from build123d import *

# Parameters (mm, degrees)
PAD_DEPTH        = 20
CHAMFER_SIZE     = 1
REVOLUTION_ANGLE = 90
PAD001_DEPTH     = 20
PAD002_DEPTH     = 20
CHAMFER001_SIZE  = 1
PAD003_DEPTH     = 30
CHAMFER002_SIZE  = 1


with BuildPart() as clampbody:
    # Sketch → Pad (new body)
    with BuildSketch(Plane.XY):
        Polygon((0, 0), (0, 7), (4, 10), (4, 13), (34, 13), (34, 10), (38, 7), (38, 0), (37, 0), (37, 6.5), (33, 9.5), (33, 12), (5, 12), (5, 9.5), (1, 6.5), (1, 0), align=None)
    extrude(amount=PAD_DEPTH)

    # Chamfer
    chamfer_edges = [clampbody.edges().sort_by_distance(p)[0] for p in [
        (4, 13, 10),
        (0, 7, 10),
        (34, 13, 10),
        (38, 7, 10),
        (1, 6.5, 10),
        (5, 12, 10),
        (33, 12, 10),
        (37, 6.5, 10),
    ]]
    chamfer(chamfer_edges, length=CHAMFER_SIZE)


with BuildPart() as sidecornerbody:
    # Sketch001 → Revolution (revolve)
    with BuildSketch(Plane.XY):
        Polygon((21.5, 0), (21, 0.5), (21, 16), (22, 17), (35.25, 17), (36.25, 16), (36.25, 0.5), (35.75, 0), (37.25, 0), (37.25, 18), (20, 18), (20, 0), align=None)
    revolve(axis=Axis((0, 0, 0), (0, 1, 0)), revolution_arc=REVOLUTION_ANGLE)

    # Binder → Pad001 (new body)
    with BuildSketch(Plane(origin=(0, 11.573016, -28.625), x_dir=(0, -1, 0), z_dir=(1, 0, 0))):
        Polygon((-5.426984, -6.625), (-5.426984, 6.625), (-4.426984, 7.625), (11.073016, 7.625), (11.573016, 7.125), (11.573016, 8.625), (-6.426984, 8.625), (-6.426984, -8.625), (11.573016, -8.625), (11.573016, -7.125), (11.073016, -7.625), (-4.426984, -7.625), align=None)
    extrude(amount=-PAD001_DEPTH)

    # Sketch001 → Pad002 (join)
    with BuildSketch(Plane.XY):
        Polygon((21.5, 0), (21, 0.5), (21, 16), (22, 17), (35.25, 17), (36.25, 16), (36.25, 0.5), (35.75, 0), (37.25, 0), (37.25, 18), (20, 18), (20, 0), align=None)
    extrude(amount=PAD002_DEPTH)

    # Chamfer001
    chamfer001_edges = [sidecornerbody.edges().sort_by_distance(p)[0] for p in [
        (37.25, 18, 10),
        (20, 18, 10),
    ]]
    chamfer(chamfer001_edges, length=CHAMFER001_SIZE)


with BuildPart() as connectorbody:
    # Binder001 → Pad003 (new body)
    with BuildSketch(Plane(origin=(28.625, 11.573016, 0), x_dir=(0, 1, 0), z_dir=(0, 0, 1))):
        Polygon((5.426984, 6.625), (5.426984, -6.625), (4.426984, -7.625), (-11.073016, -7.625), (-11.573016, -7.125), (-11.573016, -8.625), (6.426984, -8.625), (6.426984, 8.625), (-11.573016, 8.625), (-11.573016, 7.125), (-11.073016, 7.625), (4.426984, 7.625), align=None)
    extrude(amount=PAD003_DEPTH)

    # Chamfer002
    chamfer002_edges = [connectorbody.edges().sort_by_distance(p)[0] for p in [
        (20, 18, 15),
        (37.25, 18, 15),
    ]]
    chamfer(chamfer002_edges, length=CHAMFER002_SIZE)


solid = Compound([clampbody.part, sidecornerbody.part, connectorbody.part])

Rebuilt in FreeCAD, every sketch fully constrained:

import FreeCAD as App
import Part
import Sketcher

V = App.Vector


def edges_at(feature, points):
    """Names of the edges that pass closest to the given points."""
    edges = feature.Shape.Edges
    near = lambda p: min(range(len(edges)), key=lambda i: edges[i].distToShape(Part.Vertex(*p))[0])
    return sorted({f"Edge{near(p) + 1}" for p in points})


def add_polygon(sketch, points):
    """Adds a closed chain of lines whose ends are joined by coincident constraints."""
    first, n = sketch.GeometryCount, len(points)
    for a, b in zip(points, points[1:] + points[:1]):
        sketch.addGeometry(Part.LineSegment(App.Vector(*a, 0), App.Vector(*b, 0)), False)
    for i in range(n):
        sketch.addConstraint(Sketcher.Constraint("Coincident", first + i, 2, first + (i + 1) % n, 1))

doc = App.newDocument("Part")
body = doc.addObject("PartDesign::Body", "Body")

sketch1 = body.newObject("Sketcher::SketchObject", "Sketch")
sketch1.AttachmentSupport = (doc.getObject("XY_Plane"), [""])
sketch1.MapMode = "FlatFace"
add_polygon(sketch1, [(0, 7), (0, 0), (1, 0), (1, 6.5), (5, 9.5), (5, 12), (33, 12), (33, 9.5), (37, 6.5), (37, 0), (38, 0), (38, 7), (34, 10), (34, 13), (4, 13), (4, 10)])
sketch1.addConstraint([
    Sketcher.Constraint("Vertical", 0),
    Sketcher.Constraint("Horizontal", 1),
    Sketcher.Constraint("Vertical", 2),
    Sketcher.Constraint("Vertical", 4),
    Sketcher.Constraint("Horizontal", 5),
    Sketcher.Constraint("Vertical", 6),
    Sketcher.Constraint("Vertical", 8),
    Sketcher.Constraint("Horizontal", 9),
    Sketcher.Constraint("Vertical", 10),
    Sketcher.Constraint("Vertical", 12),
    Sketcher.Constraint("Horizontal", 13),
    Sketcher.Constraint("Vertical", 14),
    Sketcher.Constraint("Coincident", 0, 2, -1, 1),
    Sketcher.Constraint("PointOnObject", 8, 2, -1),
    Sketcher.Constraint("Parallel", 7, 11),
    Sketcher.Constraint("Parallel", 3, 15),
    Sketcher.Constraint("Horizontal", 3, 2, 6, 2),
    Sketcher.Constraint("Horizontal", 2, 2, 7, 2),
    Sketcher.Constraint("Horizontal", 11, 2, 14, 2),
    Sketcher.Constraint("Horizontal", 10, 2, 15, 2),
    Sketcher.Constraint("Equal", 1, 9),
    Sketcher.Constraint("Equal", 3, 7),
    Sketcher.Constraint("Equal", 7, 11),
    Sketcher.Constraint("DistanceX", 1, 1, 1, 2, 1.0),
    Sketcher.Constraint("DistanceX", 5, 1, 5, 2, 28.0),
    Sketcher.Constraint("DistanceY", 0, 2, 0, 1, 7.0),
    Sketcher.Constraint("DistanceY", 12, 1, 12, 2, 3.0),
    Sketcher.Constraint("Distance", 3, 5.0),
    Sketcher.Constraint("DistanceY", 2, 1, 2, 2, 6.5),
    Sketcher.Constraint("DistanceY", 4, 1, 4, 2, 2.5),
    Sketcher.Constraint("DistanceX", -1, 1, 3, 2, 5.0),
])
pad1 = body.newObject("PartDesign::Pad", "Pad")
pad1.Profile = sketch1
pad1.Length = 20
doc.recompute()

chamfer = body.newObject("PartDesign::Chamfer", "Chamfer")
chamfer.Base = (pad1, edges_at(pad1, [
    (4, 13, 10),
    (0, 7, 10),
    (34, 13, 10),
    (38, 7, 10),
    (1, 6.5, 10),
    (5, 12, 10),
    (33, 12, 10),
    (37, 6.5, 10),
]))
chamfer.Size = 1
body2 = doc.addObject("PartDesign::Body", "Body001")

sketch2 = body2.newObject("Sketcher::SketchObject", "Sketch001")
sketch2.AttachmentSupport = (doc.getObject("XY_Plane001"), [""])
sketch2.MapMode = "FlatFace"
add_polygon(sketch2, [(21.5, 0), (21, 0.5), (21, 16), (22, 17), (35.2, 17), (36.2, 16), (36.2, 0.5), (35.8, 0), (37.2, 0), (37.2, 18), (20, 18), (20, 0)])
sketch2.addConstraint([
    Sketcher.Constraint("Vertical", 1),
    Sketcher.Constraint("Horizontal", 3),
    Sketcher.Constraint("Vertical", 5),
    Sketcher.Constraint("Horizontal", 7),
    Sketcher.Constraint("Vertical", 8),
    Sketcher.Constraint("Horizontal", 9),
    Sketcher.Constraint("Vertical", 10),
    Sketcher.Constraint("Horizontal", 11),
    Sketcher.Constraint("PointOnObject", 6, 2, -1),
    Sketcher.Constraint("PointOnObject", 10, 2, -1),
    Sketcher.Constraint("Perpendicular", 0, 2),
    Sketcher.Constraint("Perpendicular", 2, 4),
    Sketcher.Constraint("Perpendicular", 4, 6),
    Sketcher.Constraint("Horizontal", 1, 2, 4, 2),
    Sketcher.Constraint("Horizontal", 0, 2, 5, 2),
    Sketcher.Constraint("Equal", 7, 11),
    Sketcher.Constraint("Equal", 2, 4),
    Sketcher.Constraint("DistanceY", 8, 1, 8, 2, 18.0),
    Sketcher.Constraint("DistanceX", 7, 1, 7, 2, 1.5),
    Sketcher.Constraint("DistanceY", 1, 1, 1, 2, 15.5),
    Sketcher.Constraint("DistanceX", -1, 1, 0, 2, 21.0),
    Sketcher.Constraint("DistanceY", -1, 1, 1, 2, 16.0),
    Sketcher.Constraint("DistanceX", -1, 1, 2, 2, 22.0),
    Sketcher.Constraint("DistanceX", 3, 1, 3, 2, 13.25),
])
revolution = body2.newObject("PartDesign::Revolution", "Revolution")
revolution.Profile = sketch2
revolution.ReferenceAxis = (sketch2, ["V_Axis"])
revolution.Angle = 90

sketch3 = body2.newObject("Sketcher::SketchObject", "Sketch002")
sketch3.AttachmentSupport = (doc.getObject("YZ_Plane001"), [""])
sketch3.MapMode = "FlatFace"
add_polygon(sketch3, [(17, -22), (17, -35.2), (16, -36.2), (0.5, -36.2), (0, -35.8), (0, -37.2), (18, -37.2), (18, -20), (0, -20), (0, -21.5), (0.5, -21), (16, -21)])
sketch3.addConstraint([
    Sketcher.Constraint("Vertical", 0),
    Sketcher.Constraint("Horizontal", 2),
    Sketcher.Constraint("Vertical", 4),
    Sketcher.Constraint("Horizontal", 5),
    Sketcher.Constraint("Vertical", 6),
    Sketcher.Constraint("Horizontal", 7),
    Sketcher.Constraint("Vertical", 8),
    Sketcher.Constraint("Horizontal", 10),
    Sketcher.Constraint("PointOnObject", 3, 2, -2),
    Sketcher.Constraint("PointOnObject", 7, 2, -2),
    Sketcher.Constraint("Perpendicular", 1, 3),
    Sketcher.Constraint("Perpendicular", 3, 9),
    Sketcher.Constraint("Perpendicular", 9, 11),
    Sketcher.Constraint("Vertical", 2, 2, 9, 2),
    Sketcher.Constraint("Vertical", 1, 2, 10, 2),
    Sketcher.Constraint("Equal", 4, 8),
    Sketcher.Constraint("Equal", 3, 9),
    Sketcher.Constraint("DistanceX", 5, 1, 5, 2, 18.0),
    Sketcher.Constraint("DistanceX", 2, 2, 2, 1, 15.5),
    Sketcher.Constraint("DistanceY", 4, 2, 4, 1, 1.5),
    Sketcher.Constraint("DistanceX", -1, 1, 0, 2, 17.0),
    Sketcher.Constraint("DistanceX", -1, 1, 1, 2, 16.0),
    Sketcher.Constraint("DistanceY", 6, 2, -1, 1, 20.0),
    Sketcher.Constraint("DistanceY", 0, 2, 0, 1, 13.25),
])
pad2 = body2.newObject("PartDesign::Pad", "Pad001")
pad2.Profile = sketch3
pad2.Length = 20
pad2.Reversed = True

sketch4 = body2.newObject("Sketcher::SketchObject", "Sketch003")
sketch4.AttachmentSupport = (doc.getObject("XY_Plane001"), [""])
sketch4.MapMode = "FlatFace"
add_polygon(sketch4, [(21.5, 0), (21, 0.5), (21, 16), (22, 17), (35.2, 17), (36.2, 16), (36.2, 0.5), (35.8, 0), (37.2, 0), (37.2, 18), (20, 18), (20, 0)])
sketch4.addConstraint([
    Sketcher.Constraint("Vertical", 1),
    Sketcher.Constraint("Horizontal", 3),
    Sketcher.Constraint("Vertical", 5),
    Sketcher.Constraint("Horizontal", 7),
    Sketcher.Constraint("Vertical", 8),
    Sketcher.Constraint("Horizontal", 9),
    Sketcher.Constraint("Vertical", 10),
    Sketcher.Constraint("Horizontal", 11),
    Sketcher.Constraint("PointOnObject", 6, 2, -1),
    Sketcher.Constraint("PointOnObject", 10, 2, -1),
    Sketcher.Constraint("Perpendicular", 0, 2),
    Sketcher.Constraint("Perpendicular", 2, 4),
    Sketcher.Constraint("Perpendicular", 4, 6),
    Sketcher.Constraint("Horizontal", 1, 2, 4, 2),
    Sketcher.Constraint("Horizontal", 0, 2, 5, 2),
    Sketcher.Constraint("Equal", 7, 11),
    Sketcher.Constraint("Equal", 2, 4),
    Sketcher.Constraint("DistanceY", 8, 1, 8, 2, 18.0),
    Sketcher.Constraint("DistanceX", 7, 1, 7, 2, 1.5),
    Sketcher.Constraint("DistanceY", 1, 1, 1, 2, 15.5),
    Sketcher.Constraint("DistanceX", -1, 1, 0, 2, 21.0),
    Sketcher.Constraint("DistanceY", -1, 1, 1, 2, 16.0),
    Sketcher.Constraint("DistanceX", -1, 1, 2, 2, 22.0),
    Sketcher.Constraint("DistanceX", 3, 1, 3, 2, 13.25),
])
pad3 = body2.newObject("PartDesign::Pad", "Pad002")
pad3.Profile = sketch4
pad3.Length = 20
doc.recompute()

chamfer2 = body2.newObject("PartDesign::Chamfer", "Chamfer001")
chamfer2.Base = (pad3, edges_at(pad3, [(37.25, 18, 10), (20, 18, 10)]))
chamfer2.Size = 1
body3 = doc.addObject("PartDesign::Body", "Body002")

sketch5 = body3.newObject("Sketcher::SketchObject", "Sketch004")
sketch5.AttachmentSupport = (doc.getObject("XY_Plane002"), [""])
sketch5.MapMode = "FlatFace"
add_polygon(sketch5, [(22, 17), (35.2, 17), (36.2, 16), (36.2, 0.5), (35.8, 0), (37.2, 0), (37.2, 18), (20, 18), (20, 0), (21.5, 0), (21, 0.5), (21, 16)])
sketch5.addConstraint([
    Sketcher.Constraint("Horizontal", 0),
    Sketcher.Constraint("Vertical", 2),
    Sketcher.Constraint("Horizontal", 4),
    Sketcher.Constraint("Vertical", 5),
    Sketcher.Constraint("Horizontal", 6),
    Sketcher.Constraint("Vertical", 7),
    Sketcher.Constraint("Horizontal", 8),
    Sketcher.Constraint("Vertical", 10),
    Sketcher.Constraint("PointOnObject", 3, 2, -1),
    Sketcher.Constraint("PointOnObject", 7, 2, -1),
    Sketcher.Constraint("Perpendicular", 1, 3),
    Sketcher.Constraint("Perpendicular", 3, 9),
    Sketcher.Constraint("Perpendicular", 9, 11),
    Sketcher.Constraint("Horizontal", 2, 2, 9, 2),
    Sketcher.Constraint("Horizontal", 1, 2, 10, 2),
    Sketcher.Constraint("Equal", 4, 8),
    Sketcher.Constraint("Equal", 3, 9),
    Sketcher.Constraint("DistanceY", 5, 1, 5, 2, 18.0),
    Sketcher.Constraint("DistanceX", 4, 1, 4, 2, 1.5),
    Sketcher.Constraint("DistanceY", 2, 2, 2, 1, 15.5),
    Sketcher.Constraint("DistanceY", -1, 1, 0, 2, 17.0),
    Sketcher.Constraint("DistanceY", -1, 1, 1, 2, 16.0),
    Sketcher.Constraint("DistanceX", -1, 1, 6, 2, 20.0),
    Sketcher.Constraint("DistanceX", 0, 1, 0, 2, 13.25),
])
pad4 = body3.newObject("PartDesign::Pad", "Pad003")
pad4.Profile = sketch5
pad4.Length = 30
doc.recompute()

chamfer3 = body3.newObject("PartDesign::Chamfer", "Chamfer002")
chamfer3.Base = (pad4, edges_at(pad4, [(20, 18, 15), (37.25, 18, 15)]))
chamfer3.Size = 1

doc.recompute()
